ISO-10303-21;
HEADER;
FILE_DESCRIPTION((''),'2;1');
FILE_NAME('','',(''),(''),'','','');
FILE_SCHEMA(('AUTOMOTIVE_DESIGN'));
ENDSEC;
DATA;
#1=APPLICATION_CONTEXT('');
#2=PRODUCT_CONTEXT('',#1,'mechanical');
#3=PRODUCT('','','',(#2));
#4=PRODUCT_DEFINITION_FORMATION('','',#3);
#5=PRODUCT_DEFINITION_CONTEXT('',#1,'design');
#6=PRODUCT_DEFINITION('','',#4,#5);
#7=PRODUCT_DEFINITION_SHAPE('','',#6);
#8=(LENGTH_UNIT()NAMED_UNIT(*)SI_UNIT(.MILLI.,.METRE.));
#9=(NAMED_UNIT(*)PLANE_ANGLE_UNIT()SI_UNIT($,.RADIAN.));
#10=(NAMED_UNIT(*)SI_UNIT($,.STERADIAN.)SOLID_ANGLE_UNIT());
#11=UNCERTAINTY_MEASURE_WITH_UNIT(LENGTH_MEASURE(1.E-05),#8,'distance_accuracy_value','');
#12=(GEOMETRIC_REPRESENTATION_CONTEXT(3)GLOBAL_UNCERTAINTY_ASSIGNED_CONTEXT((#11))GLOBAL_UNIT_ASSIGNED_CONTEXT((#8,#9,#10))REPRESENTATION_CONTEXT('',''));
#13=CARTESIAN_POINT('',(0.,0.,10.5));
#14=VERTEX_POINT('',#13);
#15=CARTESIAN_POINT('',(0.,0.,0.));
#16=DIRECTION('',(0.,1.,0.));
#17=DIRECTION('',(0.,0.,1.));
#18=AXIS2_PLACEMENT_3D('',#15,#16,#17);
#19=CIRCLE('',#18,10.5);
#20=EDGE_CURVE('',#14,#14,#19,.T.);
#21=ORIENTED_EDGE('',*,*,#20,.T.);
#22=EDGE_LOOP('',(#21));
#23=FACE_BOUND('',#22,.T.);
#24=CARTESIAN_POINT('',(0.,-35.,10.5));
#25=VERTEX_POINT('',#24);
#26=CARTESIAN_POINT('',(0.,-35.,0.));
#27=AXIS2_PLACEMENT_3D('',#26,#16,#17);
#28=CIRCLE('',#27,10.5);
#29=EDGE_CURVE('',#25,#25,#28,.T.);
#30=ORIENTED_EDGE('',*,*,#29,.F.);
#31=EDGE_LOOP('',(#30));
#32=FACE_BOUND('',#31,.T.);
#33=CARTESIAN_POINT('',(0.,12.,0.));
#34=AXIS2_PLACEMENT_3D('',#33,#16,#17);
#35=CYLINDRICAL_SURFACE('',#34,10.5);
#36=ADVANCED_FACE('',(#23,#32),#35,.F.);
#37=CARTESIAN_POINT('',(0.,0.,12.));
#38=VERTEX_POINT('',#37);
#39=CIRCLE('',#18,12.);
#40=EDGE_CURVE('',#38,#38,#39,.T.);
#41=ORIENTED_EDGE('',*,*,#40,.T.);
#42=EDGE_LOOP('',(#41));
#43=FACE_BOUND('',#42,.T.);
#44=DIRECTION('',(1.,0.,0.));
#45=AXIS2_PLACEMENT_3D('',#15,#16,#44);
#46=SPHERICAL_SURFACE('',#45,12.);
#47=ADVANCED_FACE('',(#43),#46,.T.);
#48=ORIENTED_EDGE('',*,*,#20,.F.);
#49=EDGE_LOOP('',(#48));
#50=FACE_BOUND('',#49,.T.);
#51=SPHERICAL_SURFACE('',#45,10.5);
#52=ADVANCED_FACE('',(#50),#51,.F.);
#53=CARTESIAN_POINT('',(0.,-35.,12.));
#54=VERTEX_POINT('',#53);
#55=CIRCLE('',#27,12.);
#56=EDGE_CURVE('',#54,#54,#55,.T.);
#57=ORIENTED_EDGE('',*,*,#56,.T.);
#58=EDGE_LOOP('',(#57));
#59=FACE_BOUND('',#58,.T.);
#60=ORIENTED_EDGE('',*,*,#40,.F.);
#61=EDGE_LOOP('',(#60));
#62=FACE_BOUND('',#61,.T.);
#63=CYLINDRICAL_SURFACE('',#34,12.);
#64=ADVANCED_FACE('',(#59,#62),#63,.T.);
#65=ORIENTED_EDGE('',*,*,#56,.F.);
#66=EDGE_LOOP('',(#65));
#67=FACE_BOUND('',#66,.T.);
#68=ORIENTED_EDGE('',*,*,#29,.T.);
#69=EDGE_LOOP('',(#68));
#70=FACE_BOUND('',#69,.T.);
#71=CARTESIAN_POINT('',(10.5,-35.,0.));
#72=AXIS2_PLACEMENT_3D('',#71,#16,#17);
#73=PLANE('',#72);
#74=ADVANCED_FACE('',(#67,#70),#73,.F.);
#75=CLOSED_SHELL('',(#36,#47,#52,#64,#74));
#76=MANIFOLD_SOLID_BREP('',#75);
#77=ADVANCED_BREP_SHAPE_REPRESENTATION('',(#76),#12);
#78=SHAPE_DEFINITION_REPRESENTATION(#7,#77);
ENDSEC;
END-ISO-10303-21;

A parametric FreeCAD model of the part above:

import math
import FreeCAD as App
import Part
import Sketcher
from FreeCAD import Vector

doc = App.newDocument("Part")
body = doc.addObject("PartDesign::Body", "Body")

sketch1 = body.newObject("Sketcher::SketchObject", "Sketch")
sketch1.AttachmentSupport = (doc.getObject("XY_Plane"), [""])
sketch1.MapMode = "FlatFace"
sketch1.addGeometry(Part.LineSegment(Vector(12, -35, 0), Vector(12, 0, 0)), False)
sketch1.addGeometry(Part.ArcOfCircle(Part.Circle(Vector(0, 0, 0), Vector(0, 0, 1), 12), math.radians(0), math.radians(90)), False)
sketch1.addGeometry(Part.LineSegment(Vector(0, 12, 0), Vector(0, 10.5, 0)), False)
sketch1.addGeometry(Part.ArcOfCircle(Part.Circle(Vector(0, 0, 0), Vector(0, 0, 1), 10.5), math.radians(0), math.radians(90)), False)
sketch1.addGeometry(Part.LineSegment(Vector(10.5, 0, 0), Vector(10.5, -35, 0)), False)
sketch1.addGeometry(Part.LineSegment(Vector(10.5, -35, 0), Vector(12, -35, 0)), False)
sketch1.addConstraint(Sketcher.Constraint("Tangent", 0, 2, 1, 1))
sketch1.addConstraint(Sketcher.Constraint("Coincident", 1, 2, 2, 1))
sketch1.addConstraint(Sketcher.Constraint("Coincident", 2, 2, 3, 2))
sketch1.addConstraint(Sketcher.Constraint("Tangent", 3, 1, 4, 1))
sketch1.addConstraint(Sketcher.Constraint("Coincident", 4, 2, 5, 1))
sketch1.addConstraint(Sketcher.Constraint("Coincident", 5, 2, 0, 1))
sketch1.addConstraint(Sketcher.Constraint("Vertical", 0))
sketch1.addConstraint(Sketcher.Constraint("Vertical", 2))
sketch1.addConstraint(Sketcher.Constraint("Vertical", 4))
sketch1.addConstraint(Sketcher.Constraint("Horizontal", 5))
sketch1.addConstraint(Sketcher.Constraint("Coincident", 1, 3, -1, 1))
sketch1.addConstraint(Sketcher.Constraint("Coincident", 3, 3, -1, 1))
sketch1.addConstraint(Sketcher.Constraint("PointOnObject", 1, 2, -2))
sketch1.addConstraint(Sketcher.Constraint("Radius", 1, 12.0))
sketch1.addConstraint(Sketcher.Constraint("Radius", 3, 10.5))
sketch1.addConstraint(Sketcher.Constraint("DistanceY", 0, 1, 0, 2, 35.0))
revolution = body.newObject("PartDesign::Revolution", "Revolution")
revolution.Profile = sketch1
revolution.ReferenceAxis = (sketch1, ["V_Axis"])
revolution.Angle = 360

doc.recompute()
